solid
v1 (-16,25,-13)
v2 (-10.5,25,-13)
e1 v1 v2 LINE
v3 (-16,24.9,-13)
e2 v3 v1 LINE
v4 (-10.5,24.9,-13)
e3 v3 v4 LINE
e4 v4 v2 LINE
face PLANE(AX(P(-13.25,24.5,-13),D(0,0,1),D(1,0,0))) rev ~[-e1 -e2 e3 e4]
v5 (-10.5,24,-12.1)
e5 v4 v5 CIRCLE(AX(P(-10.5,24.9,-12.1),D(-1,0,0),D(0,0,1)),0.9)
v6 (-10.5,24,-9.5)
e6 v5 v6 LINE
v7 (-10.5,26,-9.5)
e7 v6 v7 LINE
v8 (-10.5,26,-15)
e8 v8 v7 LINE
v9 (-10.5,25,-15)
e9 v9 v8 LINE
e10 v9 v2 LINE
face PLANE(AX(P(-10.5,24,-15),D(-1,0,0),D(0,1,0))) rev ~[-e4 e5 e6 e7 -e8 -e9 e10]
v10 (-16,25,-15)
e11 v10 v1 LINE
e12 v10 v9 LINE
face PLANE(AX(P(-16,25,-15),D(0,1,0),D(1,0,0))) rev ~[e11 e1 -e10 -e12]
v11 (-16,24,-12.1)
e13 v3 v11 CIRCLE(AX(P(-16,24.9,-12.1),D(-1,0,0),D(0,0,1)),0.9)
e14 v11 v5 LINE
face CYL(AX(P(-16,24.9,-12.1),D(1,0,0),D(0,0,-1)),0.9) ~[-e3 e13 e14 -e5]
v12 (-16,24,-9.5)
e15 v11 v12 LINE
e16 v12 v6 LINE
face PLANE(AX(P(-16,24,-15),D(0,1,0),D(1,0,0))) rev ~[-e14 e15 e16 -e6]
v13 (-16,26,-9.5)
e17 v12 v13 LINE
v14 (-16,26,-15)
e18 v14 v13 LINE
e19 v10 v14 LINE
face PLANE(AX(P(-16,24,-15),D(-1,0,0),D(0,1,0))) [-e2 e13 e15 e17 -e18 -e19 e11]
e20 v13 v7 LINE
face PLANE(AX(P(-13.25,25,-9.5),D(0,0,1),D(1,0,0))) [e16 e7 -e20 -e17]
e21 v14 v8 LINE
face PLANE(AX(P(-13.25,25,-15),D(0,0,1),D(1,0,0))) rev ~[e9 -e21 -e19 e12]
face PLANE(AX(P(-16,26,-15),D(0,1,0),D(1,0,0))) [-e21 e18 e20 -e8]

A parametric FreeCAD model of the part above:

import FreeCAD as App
import Part
import Sketcher
from FreeCAD import Vector
Q = App.Units.Quantity


def edges_at(feature, points):
    """Names of the edges that pass closest to the given points."""
    edges = feature.Shape.Edges
    near = lambda p: min(range(len(edges)), key=lambda i: edges[i].distToShape(Part.Vertex(*p))[0])
    return sorted({f"Edge{near(p) + 1}" for p in points})

doc = App.newDocument("Part")
body = doc.addObject("PartDesign::Body", "Body")

sketch1 = doc.addObject("Sketcher::SketchObject", "Sketch")
body.addObject(sketch1)
sketch1.AttachmentSupport = (doc.XY_Plane, [""])
sketch1.MapMode = "FlatFace"
sketch1.AttachmentOffset = App.Placement(Vector(0, 0, -15), App.Rotation())
sketch1.addGeometry(Part.LineSegment(Vector(5, 25, 0), Vector(5, 24, 0)), False)
sketch1.addGeometry(Part.LineSegment(Vector(5, 24, 0), Vector(10.5, 24, 0)), False)
sketch1.addGeometry(Part.LineSegment(Vector(10.5, 24, 0), Vector(10.5, 25, 0)), False)
sketch1.addGeometry(Part.LineSegment(Vector(10.5, 25, 0), Vector(5, 25, 0)), False)
sketch1.addConstraint(Sketcher.Constraint("Coincident", 0, 2, 1, 1))
sketch1.addConstraint(Sketcher.Constraint("Coincident", 1, 2, 2, 1))
sketch1.addConstraint(Sketcher.Constraint("Coincident", 2, 2, 3, 1))
sketch1.addConstraint(Sketcher.Constraint("Coincident", 3, 2, 0, 1))
sketch1.addConstraint(Sketcher.Constraint("Vertical", 0))
sketch1.addConstraint(Sketcher.Constraint("Horizontal", 1))
sketch1.addConstraint(Sketcher.Constraint("Vertical", 2))
sketch1.addConstraint(Sketcher.Constraint("Horizontal", 3))
sketch1.addConstraint(Sketcher.Constraint("DistanceY", 0, 2, 0, 1, Q("1 mm")))
sketch1.addConstraint(Sketcher.Constraint("DistanceX", 1, 1, 1, 2, Q("5.5 mm")))
sketch1.addConstraint(Sketcher.Constraint("DistanceX", -1, 1, 0, 2, Q("5 mm")))
sketch1.addConstraint(Sketcher.Constraint("DistanceY", -1, 1, 0, 2, Q("24 mm")))
pad1 = doc.addObject("PartDesign::Pad", "Pad")
body.addObject(pad1)
pad1.Profile = sketch1
pad1.Length = 2
body2 = doc.addObject("PartDesign::Body", "Body001")

sketch2 = doc.addObject("Sketcher::SketchObject", "Sketch001")
body2.addObject(sketch2)
sketch2.AttachmentSupport = (doc.getObject("XY_Plane001"), [""])
sketch2.MapMode = "FlatFace"
sketch2.AttachmentOffset = App.Placement(Vector(0, 0, -15), App.Rotation())
sketch2.addGeometry(Part.LineSegment(Vector(5, 26, 0), Vector(5, 24, 0)), False)
sketch2.addGeometry(Part.LineSegment(Vector(5, 24, 0), Vector(10.5, 24, 0)), False)
sketch2.addGeometry(Part.LineSegment(Vector(10.5, 24, 0), Vector(10.5, 26, 0)), False)
sketch2.addGeometry(Part.LineSegment(Vector(10.5, 26, 0), Vector(5, 26, 0)), False)
sketch2.addConstraint(Sketcher.Constraint("Coincident", 0, 2, 1, 1))
sketch2.addConstraint(Sketcher.Constraint("Coincident", 1, 2, 2, 1))
sketch2.addConstraint(Sketcher.Constraint("Coincident", 2, 2, 3, 1))
sketch2.addConstraint(Sketcher.Constraint("Coincident", 3, 2, 0, 1))
sketch2.addConstraint(Sketcher.Constraint("Vertical", 0))
sketch2.addConstraint(Sketcher.Constraint("Horizontal", 1))
sketch2.addConstraint(Sketcher.Constraint("Vertical", 2))
sketch2.addConstraint(Sketcher.Constraint("Horizontal", 3))
sketch2.addConstraint(Sketcher.Constraint("DistanceY", 0, 2, 0, 1, Q("2 mm")))
sketch2.addConstraint(Sketcher.Constraint("DistanceX", 1, 1, 1, 2, Q("5.5 mm")))
sketch2.addConstraint(Sketcher.Constraint("DistanceX", -1, 1, 0, 2, Q("5 mm")))
sketch2.addConstraint(Sketcher.Constraint("DistanceY", -1, 1, 0, 2, Q("24 mm")))
pad2 = doc.addObject("PartDesign::Pad", "Pad001")
body2.addObject(pad2)
pad2.Profile = sketch2
pad2.Length = 5.5
doc.recompute()

boolean = doc.addObject("PartDesign::Boolean", "Boolean")
body2.addObject(boolean)
boolean.Type = "Cut"
boolean.addObjects([body])
doc.recompute()

fillet = doc.addObject("PartDesign::Fillet", "Fillet")
body2.addObject(fillet)
fillet.Base = (boolean, edges_at(boolean, [(7.75, 24, -13)]))
fillet.Radius = 0.9
body3 = doc.addObject("PartDesign::Body", "Body002")
doc.recompute()

body2.Placement = App.Placement(Vector(-21, 0, 0), App.Rotation(Vector(0, 0, 1), 0))
boolean2 = doc.addObject("PartDesign::Boolean", "Boolean001")
body3.addObject(boolean2)
boolean2.Type = "Fuse"
boolean2.addObjects([body2])

doc.recompute()
